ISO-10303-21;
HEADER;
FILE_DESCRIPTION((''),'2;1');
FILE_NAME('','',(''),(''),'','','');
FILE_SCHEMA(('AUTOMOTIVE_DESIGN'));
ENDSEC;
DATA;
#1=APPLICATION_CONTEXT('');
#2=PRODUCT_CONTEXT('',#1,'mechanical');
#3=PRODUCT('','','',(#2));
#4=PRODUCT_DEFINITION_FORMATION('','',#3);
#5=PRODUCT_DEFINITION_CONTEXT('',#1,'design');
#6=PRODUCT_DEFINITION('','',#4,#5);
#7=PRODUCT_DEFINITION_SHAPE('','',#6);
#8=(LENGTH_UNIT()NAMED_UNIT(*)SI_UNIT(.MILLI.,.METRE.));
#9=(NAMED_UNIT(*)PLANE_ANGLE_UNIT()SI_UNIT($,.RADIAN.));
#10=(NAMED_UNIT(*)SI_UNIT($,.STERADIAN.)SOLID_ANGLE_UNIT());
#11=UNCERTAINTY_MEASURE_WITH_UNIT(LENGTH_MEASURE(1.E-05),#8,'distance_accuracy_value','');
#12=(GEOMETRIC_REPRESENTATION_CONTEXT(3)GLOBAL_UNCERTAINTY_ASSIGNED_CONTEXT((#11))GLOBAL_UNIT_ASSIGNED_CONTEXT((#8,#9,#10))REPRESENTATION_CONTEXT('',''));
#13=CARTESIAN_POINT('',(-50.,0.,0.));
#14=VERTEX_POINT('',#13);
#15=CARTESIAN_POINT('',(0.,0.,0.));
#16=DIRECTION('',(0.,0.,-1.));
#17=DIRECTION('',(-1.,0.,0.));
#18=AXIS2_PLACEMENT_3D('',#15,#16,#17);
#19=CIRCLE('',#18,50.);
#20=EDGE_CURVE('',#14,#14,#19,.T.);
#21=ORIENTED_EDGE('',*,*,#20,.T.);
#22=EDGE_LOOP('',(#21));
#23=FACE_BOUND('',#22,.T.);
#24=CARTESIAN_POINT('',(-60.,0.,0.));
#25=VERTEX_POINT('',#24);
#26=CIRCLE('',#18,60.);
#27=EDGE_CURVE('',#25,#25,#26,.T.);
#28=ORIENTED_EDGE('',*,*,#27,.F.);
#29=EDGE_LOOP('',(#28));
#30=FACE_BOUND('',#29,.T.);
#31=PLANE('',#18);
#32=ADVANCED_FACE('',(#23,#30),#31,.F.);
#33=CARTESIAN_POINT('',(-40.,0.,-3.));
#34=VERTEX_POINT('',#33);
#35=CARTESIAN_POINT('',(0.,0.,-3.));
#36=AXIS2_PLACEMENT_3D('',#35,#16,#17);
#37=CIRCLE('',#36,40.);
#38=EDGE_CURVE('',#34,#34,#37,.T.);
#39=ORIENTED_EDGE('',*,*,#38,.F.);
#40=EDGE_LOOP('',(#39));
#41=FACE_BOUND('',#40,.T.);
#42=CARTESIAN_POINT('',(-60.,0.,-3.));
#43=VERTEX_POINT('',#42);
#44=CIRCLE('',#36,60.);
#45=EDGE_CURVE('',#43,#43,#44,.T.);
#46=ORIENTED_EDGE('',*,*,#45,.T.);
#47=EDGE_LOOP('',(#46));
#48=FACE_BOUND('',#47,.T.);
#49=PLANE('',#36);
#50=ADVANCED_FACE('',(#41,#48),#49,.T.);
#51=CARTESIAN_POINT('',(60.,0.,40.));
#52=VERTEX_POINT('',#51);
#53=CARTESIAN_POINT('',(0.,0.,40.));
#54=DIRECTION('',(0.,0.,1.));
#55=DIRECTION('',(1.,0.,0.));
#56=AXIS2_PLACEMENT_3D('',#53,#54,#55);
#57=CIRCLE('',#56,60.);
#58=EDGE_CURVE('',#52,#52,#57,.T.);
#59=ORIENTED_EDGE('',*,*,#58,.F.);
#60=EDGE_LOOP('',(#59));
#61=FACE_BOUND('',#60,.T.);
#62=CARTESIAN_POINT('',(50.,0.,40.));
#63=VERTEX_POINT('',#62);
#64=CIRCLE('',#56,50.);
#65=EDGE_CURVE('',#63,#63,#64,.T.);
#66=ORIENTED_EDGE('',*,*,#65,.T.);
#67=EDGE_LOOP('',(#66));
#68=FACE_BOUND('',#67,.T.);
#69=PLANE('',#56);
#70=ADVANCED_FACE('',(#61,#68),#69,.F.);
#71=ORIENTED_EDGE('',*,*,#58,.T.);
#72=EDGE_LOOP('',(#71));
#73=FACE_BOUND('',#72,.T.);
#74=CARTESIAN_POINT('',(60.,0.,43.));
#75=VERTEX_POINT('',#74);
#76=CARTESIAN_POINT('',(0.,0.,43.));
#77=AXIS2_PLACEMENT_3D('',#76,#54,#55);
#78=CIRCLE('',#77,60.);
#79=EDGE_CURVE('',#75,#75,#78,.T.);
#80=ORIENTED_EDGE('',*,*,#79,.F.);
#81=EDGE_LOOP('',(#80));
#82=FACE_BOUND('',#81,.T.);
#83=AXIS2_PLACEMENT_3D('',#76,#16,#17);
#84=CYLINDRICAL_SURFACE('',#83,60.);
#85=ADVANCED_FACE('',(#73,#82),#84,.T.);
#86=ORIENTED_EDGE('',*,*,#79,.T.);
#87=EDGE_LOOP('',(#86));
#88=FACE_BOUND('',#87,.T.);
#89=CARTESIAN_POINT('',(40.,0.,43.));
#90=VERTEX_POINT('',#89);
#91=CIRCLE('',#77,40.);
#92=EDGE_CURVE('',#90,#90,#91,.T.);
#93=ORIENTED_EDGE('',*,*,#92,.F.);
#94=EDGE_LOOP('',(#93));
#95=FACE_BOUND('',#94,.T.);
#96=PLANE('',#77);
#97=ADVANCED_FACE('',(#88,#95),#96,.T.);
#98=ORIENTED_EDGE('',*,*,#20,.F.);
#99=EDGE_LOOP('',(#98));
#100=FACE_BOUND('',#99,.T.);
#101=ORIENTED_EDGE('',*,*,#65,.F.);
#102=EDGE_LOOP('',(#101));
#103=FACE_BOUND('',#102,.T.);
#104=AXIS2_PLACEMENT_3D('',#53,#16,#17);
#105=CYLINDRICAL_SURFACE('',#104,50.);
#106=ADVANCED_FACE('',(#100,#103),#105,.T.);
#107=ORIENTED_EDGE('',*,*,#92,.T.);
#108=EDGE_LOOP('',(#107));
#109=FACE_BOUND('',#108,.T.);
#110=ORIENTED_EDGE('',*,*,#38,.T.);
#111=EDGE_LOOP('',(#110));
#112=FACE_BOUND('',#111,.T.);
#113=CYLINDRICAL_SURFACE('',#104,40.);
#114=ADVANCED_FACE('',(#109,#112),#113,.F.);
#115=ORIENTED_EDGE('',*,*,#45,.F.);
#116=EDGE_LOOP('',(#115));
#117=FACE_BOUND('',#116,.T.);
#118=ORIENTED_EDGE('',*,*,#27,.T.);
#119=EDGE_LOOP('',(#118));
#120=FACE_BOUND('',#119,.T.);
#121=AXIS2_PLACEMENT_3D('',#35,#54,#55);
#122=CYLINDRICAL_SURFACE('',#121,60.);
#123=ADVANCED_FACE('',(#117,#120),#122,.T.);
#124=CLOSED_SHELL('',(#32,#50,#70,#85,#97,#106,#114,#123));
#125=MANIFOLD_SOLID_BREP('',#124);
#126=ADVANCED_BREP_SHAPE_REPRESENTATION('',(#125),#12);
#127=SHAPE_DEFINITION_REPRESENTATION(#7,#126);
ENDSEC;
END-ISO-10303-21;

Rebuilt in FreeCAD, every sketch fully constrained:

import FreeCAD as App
import Part
import Sketcher
from FreeCAD import Vector
Q = App.Units.Quantity

doc = App.newDocument("Part")
body = doc.addObject("PartDesign::Body", "Body")

sketch1 = doc.addObject("Sketcher::SketchObject", "Sketch")
body.addObject(sketch1)
sketch1.AttachmentSupport = (doc.XY_Plane, [""])
sketch1.MapMode = "FlatFace"
sketch1.addGeometry([
    Part.Circle(Vector(0, 0, 0), Vector(0, 0, 1), 50),
    Part.Circle(Vector(0, 0, 0), Vector(0, 0, 1), 40),
], False)
sketch1.addConstraint([
    Sketcher.Constraint("Coincident", 0, 3, -1, 1),
    Sketcher.Constraint("Coincident", 1, 3, -1, 1),
    Sketcher.Constraint("Diameter", 0, Q("100 mm")),
    Sketcher.Constraint("Diameter", 1, Q("80 mm")),
])
pad1 = doc.addObject("PartDesign::Pad", "Pad")
body.addObject(pad1)
pad1.Profile = sketch1
pad1.Length = 40

sketch2 = doc.addObject("Sketcher::SketchObject", "Sketch001")
body.addObject(sketch2)
sketch2.AttachmentSupport = (doc.XY_Plane, [""])
sketch2.MapMode = "FlatFace"
sketch2.AttachmentOffset = App.Placement(Vector(0, 0, 40), App.Rotation())
sketch2.addGeometry([
    Part.Circle(Vector(0, 0, 0), Vector(0, 0, 1), 60),
    Part.Circle(Vector(0, 0, 0), Vector(0, 0, 1), 40),
], False)
sketch2.addConstraint([
    Sketcher.Constraint("Coincident", 0, 3, -1, 1),
    Sketcher.Constraint("Coincident", 1, 3, -1, 1),
    Sketcher.Constraint("Diameter", 0, Q("120 mm")),
    Sketcher.Constraint("Diameter", 1, Q("80 mm")),
])
pad2 = doc.addObject("PartDesign::Pad", "Pad001")
body.addObject(pad2)
pad2.Profile = sketch2
pad2.Length = 3

sketch3 = doc.addObject("Sketcher::SketchObject", "Sketch002")
body.addObject(sketch3)
sketch3.AttachmentSupport = (doc.XY_Plane, [""])
sketch3.MapMode = "FlatFace"
sketch3.AttachmentOffset = App.Placement(Vector(0, 0, -3), App.Rotation())
sketch3.addGeometry([
    Part.Circle(Vector(0, 0, 0), Vector(0, 0, 1), 60),
    Part.Circle(Vector(0, 0, 0), Vector(0, 0, 1), 40),
], False)
sketch3.addConstraint([
    Sketcher.Constraint("Coincident", 0, 3, -1, 1),
    Sketcher.Constraint("Coincident", 1, 3, -1, 1),
    Sketcher.Constraint("Diameter", 0, Q("120 mm")),
    Sketcher.Constraint("Diameter", 1, Q("80 mm")),
])
pad3 = doc.addObject("PartDesign::Pad", "Pad002")
body.addObject(pad3)
pad3.Profile = sketch3
pad3.Length = 3

doc.recompute()
